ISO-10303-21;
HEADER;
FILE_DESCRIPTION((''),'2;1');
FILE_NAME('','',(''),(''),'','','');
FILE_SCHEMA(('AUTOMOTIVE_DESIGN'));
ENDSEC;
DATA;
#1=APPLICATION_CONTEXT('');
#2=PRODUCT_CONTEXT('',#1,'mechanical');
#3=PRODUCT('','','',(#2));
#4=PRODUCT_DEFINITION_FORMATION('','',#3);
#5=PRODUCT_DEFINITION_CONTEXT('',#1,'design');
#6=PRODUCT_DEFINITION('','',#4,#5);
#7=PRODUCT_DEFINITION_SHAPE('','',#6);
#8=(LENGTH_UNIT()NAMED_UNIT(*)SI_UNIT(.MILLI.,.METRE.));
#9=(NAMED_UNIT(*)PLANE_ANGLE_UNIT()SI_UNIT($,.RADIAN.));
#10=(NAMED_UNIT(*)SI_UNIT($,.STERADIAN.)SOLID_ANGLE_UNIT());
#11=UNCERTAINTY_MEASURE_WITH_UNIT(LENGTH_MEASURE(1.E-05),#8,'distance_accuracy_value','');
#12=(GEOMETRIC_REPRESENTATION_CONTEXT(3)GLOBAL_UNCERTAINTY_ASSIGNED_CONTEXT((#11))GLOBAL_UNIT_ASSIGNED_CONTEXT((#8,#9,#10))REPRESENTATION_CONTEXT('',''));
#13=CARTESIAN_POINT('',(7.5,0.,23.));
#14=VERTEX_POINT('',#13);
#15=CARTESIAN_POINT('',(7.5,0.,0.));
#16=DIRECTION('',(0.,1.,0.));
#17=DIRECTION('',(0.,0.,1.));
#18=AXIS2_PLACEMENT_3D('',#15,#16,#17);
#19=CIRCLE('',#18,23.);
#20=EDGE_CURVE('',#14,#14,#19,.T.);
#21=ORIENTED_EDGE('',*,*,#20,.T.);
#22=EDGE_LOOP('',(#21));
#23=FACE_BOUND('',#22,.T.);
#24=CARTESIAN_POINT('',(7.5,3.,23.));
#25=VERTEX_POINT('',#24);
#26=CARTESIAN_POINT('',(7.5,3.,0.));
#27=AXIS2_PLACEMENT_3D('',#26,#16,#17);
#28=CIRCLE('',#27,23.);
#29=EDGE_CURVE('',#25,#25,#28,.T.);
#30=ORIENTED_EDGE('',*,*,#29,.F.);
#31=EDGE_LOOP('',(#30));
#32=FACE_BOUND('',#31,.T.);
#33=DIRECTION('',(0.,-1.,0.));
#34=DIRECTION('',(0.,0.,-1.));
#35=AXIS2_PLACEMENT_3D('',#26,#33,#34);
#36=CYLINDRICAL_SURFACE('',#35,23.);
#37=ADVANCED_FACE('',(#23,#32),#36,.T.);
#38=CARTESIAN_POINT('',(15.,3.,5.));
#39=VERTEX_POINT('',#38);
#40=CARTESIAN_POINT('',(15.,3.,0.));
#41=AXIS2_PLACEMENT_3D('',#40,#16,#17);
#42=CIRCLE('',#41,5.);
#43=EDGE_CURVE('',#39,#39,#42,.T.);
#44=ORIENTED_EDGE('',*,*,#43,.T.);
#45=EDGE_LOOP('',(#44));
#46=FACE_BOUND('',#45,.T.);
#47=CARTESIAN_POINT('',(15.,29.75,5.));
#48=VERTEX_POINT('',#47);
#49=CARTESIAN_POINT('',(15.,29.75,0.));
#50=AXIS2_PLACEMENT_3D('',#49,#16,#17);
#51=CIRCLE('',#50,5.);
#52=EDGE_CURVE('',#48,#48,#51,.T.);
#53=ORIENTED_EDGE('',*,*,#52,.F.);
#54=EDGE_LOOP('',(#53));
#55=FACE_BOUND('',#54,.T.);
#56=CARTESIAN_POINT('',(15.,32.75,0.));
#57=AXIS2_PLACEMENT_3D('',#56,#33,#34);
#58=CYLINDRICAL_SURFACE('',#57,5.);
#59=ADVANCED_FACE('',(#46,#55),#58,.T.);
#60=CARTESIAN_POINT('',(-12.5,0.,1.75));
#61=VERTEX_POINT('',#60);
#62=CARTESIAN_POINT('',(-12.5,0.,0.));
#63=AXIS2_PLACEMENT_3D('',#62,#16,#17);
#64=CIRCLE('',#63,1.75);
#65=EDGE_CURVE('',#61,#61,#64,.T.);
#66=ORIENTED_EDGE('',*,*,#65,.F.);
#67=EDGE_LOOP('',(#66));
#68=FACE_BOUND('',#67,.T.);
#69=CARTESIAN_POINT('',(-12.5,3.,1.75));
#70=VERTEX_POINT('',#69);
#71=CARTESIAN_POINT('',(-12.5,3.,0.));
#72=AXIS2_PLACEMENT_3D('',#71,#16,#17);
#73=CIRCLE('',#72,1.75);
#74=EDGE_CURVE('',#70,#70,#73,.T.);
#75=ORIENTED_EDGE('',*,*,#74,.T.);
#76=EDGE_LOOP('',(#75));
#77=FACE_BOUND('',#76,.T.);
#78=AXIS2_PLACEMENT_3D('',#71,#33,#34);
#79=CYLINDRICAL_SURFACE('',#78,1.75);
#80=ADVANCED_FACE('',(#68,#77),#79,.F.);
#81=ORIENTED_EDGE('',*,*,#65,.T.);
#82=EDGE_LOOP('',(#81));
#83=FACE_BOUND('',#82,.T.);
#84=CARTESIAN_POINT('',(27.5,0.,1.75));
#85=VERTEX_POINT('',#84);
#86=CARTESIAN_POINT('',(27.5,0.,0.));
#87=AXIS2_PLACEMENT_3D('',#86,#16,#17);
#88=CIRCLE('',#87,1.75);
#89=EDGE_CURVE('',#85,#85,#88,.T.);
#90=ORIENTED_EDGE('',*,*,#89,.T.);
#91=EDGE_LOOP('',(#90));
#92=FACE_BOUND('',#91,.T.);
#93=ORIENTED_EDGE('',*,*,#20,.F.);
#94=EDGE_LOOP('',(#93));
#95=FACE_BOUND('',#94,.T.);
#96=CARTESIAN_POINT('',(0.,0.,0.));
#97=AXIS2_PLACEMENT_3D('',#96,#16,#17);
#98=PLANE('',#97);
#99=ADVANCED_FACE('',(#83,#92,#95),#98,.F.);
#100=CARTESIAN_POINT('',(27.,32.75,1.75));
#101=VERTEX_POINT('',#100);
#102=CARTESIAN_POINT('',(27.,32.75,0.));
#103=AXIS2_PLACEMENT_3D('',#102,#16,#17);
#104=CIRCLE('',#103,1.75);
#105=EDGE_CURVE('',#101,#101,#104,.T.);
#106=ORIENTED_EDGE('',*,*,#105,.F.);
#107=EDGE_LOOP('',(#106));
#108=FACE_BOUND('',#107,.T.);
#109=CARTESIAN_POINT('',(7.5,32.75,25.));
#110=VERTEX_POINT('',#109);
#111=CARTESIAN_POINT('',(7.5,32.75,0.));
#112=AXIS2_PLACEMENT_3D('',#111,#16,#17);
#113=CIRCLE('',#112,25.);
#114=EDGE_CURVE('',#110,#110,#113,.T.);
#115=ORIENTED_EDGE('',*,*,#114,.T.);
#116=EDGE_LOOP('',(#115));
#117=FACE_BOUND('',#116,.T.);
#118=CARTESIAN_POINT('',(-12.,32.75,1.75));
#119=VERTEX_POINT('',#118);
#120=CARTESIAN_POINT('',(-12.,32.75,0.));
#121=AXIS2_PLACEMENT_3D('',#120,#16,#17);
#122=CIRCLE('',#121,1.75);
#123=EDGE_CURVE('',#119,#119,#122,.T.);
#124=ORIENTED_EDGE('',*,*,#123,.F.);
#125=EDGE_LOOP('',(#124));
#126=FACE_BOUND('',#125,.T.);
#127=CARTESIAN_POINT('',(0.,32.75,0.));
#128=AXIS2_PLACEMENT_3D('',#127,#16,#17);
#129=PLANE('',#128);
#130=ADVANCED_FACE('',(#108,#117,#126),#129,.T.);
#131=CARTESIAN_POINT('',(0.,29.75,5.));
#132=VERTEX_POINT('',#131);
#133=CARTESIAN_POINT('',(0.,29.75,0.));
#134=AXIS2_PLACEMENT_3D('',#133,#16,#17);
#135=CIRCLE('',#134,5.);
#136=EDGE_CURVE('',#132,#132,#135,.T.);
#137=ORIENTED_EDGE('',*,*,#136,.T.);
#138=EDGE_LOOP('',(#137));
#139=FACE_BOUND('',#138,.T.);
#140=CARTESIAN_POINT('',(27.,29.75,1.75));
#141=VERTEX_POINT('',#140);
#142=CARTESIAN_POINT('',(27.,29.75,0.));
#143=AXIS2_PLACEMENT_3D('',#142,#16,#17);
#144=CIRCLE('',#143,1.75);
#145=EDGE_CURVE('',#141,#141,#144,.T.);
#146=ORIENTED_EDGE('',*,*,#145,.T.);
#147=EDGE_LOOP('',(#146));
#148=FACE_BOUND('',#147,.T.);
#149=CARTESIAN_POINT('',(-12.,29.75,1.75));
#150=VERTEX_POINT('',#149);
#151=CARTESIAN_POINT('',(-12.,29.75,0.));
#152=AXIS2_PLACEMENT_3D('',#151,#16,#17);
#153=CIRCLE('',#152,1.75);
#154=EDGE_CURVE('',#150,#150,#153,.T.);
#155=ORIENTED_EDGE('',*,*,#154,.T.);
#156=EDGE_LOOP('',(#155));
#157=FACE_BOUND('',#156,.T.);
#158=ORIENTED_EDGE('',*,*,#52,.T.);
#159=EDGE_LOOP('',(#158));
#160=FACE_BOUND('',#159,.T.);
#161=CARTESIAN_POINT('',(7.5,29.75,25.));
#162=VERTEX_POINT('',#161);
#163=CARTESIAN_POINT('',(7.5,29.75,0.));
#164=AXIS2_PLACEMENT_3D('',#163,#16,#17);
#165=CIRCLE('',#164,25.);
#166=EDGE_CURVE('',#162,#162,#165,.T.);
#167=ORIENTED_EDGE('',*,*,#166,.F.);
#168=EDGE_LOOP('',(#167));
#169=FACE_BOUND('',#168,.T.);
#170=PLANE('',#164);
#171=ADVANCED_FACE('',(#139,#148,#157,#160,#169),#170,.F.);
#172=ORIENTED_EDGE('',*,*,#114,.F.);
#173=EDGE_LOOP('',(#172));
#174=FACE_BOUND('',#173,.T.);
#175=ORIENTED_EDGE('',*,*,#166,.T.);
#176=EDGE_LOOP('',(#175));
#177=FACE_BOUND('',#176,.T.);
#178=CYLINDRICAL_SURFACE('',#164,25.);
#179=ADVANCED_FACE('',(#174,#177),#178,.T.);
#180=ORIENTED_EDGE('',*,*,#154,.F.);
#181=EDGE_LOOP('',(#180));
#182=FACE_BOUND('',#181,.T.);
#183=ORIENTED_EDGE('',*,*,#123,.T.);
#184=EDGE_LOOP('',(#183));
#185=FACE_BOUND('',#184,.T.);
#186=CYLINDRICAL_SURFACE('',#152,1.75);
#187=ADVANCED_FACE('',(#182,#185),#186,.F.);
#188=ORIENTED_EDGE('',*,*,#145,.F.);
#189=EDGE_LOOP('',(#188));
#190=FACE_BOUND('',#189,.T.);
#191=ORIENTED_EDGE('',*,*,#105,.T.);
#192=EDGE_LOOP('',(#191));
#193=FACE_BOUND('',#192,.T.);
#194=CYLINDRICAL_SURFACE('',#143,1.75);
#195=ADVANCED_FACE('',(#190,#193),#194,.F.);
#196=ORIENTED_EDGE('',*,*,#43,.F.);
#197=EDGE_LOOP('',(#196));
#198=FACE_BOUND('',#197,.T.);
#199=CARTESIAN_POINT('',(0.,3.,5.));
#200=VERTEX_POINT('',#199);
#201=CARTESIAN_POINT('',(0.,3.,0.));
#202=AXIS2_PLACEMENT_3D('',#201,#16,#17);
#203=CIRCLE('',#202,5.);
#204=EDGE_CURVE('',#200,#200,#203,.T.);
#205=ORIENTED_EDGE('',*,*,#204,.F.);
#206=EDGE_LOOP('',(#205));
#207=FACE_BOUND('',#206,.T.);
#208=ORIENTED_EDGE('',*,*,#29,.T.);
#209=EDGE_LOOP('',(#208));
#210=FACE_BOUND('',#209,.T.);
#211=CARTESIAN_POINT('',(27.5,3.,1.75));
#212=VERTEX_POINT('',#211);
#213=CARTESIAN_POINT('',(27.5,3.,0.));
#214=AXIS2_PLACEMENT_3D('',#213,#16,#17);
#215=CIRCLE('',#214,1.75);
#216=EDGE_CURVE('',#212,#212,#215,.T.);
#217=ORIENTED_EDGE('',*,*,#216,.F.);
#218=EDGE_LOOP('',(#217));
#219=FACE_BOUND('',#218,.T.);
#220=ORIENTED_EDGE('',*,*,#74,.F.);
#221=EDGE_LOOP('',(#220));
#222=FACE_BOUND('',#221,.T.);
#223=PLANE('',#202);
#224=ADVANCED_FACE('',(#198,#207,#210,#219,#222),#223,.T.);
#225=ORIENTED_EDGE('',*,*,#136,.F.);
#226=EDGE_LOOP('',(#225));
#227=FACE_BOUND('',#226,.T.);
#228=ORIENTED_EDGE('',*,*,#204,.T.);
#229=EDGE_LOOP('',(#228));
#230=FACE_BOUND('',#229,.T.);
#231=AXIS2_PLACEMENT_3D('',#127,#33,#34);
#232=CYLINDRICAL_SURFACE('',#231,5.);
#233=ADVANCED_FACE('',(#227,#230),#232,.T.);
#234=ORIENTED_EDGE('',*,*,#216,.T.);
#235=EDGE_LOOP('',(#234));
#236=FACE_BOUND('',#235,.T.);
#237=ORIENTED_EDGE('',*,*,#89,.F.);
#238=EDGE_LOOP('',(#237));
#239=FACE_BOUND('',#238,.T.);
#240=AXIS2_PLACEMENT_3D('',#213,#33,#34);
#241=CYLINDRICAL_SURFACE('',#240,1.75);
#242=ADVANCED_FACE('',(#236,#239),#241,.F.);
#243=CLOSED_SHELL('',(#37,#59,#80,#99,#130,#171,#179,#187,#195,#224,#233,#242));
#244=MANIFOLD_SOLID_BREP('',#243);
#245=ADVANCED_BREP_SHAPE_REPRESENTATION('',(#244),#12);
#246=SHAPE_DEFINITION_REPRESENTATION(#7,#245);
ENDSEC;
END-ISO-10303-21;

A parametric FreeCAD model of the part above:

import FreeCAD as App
import Part
import Sketcher
Q = App.Units.Quantity

doc = App.newDocument("Part")
params = doc.addObject("Spreadsheet::Sheet", "Params")
for row, (alias, value) in enumerate([
    ("sketch1_diameter", "46 mm"),
    ("sketch1_diameter2", "10 mm"),
    ("sketch1_diameter3", "3.5 mm"),
    ("pad1_length", "3 mm"),
    ("sketch2_diameter", "10 mm"),
    ("pad2_length", "32.75 mm"),
    ("sketch3_diameter", "50 mm"),
    ("sketch3_diameter2", "3.5 mm"),
    ("pad3_length", "3 mm"),
], start=1):
    params.set(f"A{row}", alias)
    params.set(f"B{row}", "=" + value)
    params.setAlias(f"B{row}", alias)

body = doc.addObject("PartDesign::Body", "Body")

# Sketch on XZ plane
sketch1 = body.newObject("Sketcher::SketchObject", "Sketch")
sketch1.AttachmentSupport = (doc.getObject("XZ_Plane"), [""])
sketch1.MapMode = "FlatFace"
sketch1.addGeometry(Part.Circle(App.Vector(7.5, 0, 0), App.Vector(0, 0, 1), 23), False)
sketch1.addGeometry(Part.Circle(App.Vector(-12.5, 0, 0), App.Vector(0, 0, 1), 1.8), False)
sketch1.addGeometry(Part.Circle(App.Vector(0, 0, 0), App.Vector(0, 0, 1), 5), False)
sketch1.addGeometry(Part.Circle(App.Vector(15, 0, 0), App.Vector(0, 0, 1), 5), False)
sketch1.addGeometry(Part.Circle(App.Vector(27.5, 0, 0), App.Vector(0, 0, 1), 1.8), False)
sketch1.addConstraint(Sketcher.Constraint("Coincident", 2, 3, -1, 1))
sketch1.addConstraint(Sketcher.Constraint("Equal", 2, 3))
sketch1.addConstraint(Sketcher.Constraint("Equal", 1, 4))
sketch1.addConstraint(Sketcher.Constraint("PointOnObject", 0, 3, -1))
sketch1.addConstraint(Sketcher.Constraint("PointOnObject", 1, 3, -1))
sketch1.addConstraint(Sketcher.Constraint("PointOnObject", 3, 3, -1))
sketch1.addConstraint(Sketcher.Constraint("PointOnObject", 4, 3, -1))
sketch1.addConstraint(Sketcher.Constraint("Diameter", 0, Q("46 mm")))
sketch1.addConstraint(Sketcher.Constraint("Diameter", 2, Q("10 mm")))
sketch1.addConstraint(Sketcher.Constraint("Diameter", 1, Q("3.5 mm")))
sketch1.addConstraint(Sketcher.Constraint("DistanceX", -1, 1, 3, 3, Q("15 mm")))
sketch1.addConstraint(Sketcher.Constraint("DistanceX", 1, 3, 0, 3, Q("20 mm")))
sketch1.addConstraint(Sketcher.Constraint("DistanceX", 0, 3, 4, 3, Q("20 mm")))
sketch1.addConstraint(Sketcher.Constraint("DistanceX", -1, 1, 0, 3, Q("7.5 mm")))
sketch1.setExpression("Constraints[7]", "Params.sketch1_diameter")
sketch1.setExpression("Constraints[8]", "Params.sketch1_diameter2")
sketch1.setExpression("Constraints[9]", "Params.sketch1_diameter3")
pad1 = body.newObject("PartDesign::Pad", "Pad")
pad1.Profile = sketch1
pad1.setExpression("Length", "Params.pad1_length")
pad1.Reversed = True

# Sketch on XZ plane
sketch2 = body.newObject("Sketcher::SketchObject", "Sketch001")
sketch2.AttachmentSupport = (doc.getObject("XZ_Plane"), [""])
sketch2.MapMode = "FlatFace"
sketch2.addGeometry(Part.Circle(App.Vector(0, 0, 0), App.Vector(0, 0, 1), 5), False)
sketch2.addGeometry(Part.Circle(App.Vector(15, 0, 0), App.Vector(0, 0, 1), 5), False)
sketch2.addConstraint(Sketcher.Constraint("Coincident", 0, 3, -1, 1))
sketch2.addConstraint(Sketcher.Constraint("Equal", 0, 1))
sketch2.addConstraint(Sketcher.Constraint("PointOnObject", 1, 3, -1))
sketch2.addConstraint(Sketcher.Constraint("Diameter", 0, Q("10 mm")))
sketch2.addConstraint(Sketcher.Constraint("DistanceX", -1, 1, 1, 3, Q("15 mm")))
sketch2.setExpression("Constraints[3]", "Params.sketch2_diameter")
pad2 = body.newObject("PartDesign::Pad", "Pad001")
pad2.Profile = sketch2
pad2.setExpression("Length", "Params.pad2_length")
pad2.Reversed = True

# Sketch on XZ plane
sketch3 = body.newObject("Sketcher::SketchObject", "Sketch002")
sketch3.AttachmentSupport = (doc.getObject("XZ_Plane"), [""])
sketch3.MapMode = "FlatFace"
sketch3.AttachmentOffset = App.Placement(App.Vector(0, 0, -32.75), App.Rotation())
sketch3.addGeometry(Part.Circle(App.Vector(7.5, 0, 0), App.Vector(0, 0, 1), 25), False)
sketch3.addGeometry(Part.Circle(App.Vector(-12, 0, 0), App.Vector(0, 0, 1), 1.8), False)
sketch3.addGeometry(Part.Circle(App.Vector(27, 0, 0), App.Vector(0, 0, 1), 1.8), False)
sketch3.addConstraint(Sketcher.Constraint("Equal", 1, 2))
sketch3.addConstraint(Sketcher.Constraint("PointOnObject", 0, 3, -1))
sketch3.addConstraint(Sketcher.Constraint("PointOnObject", 1, 3, -1))
sketch3.addConstraint(Sketcher.Constraint("PointOnObject", 2, 3, -1))
sketch3.addConstraint(Sketcher.Constraint("Diameter", 0, Q("50 mm")))
sketch3.addConstraint(Sketcher.Constraint("Diameter", 1, Q("3.5 mm")))
sketch3.addConstraint(Sketcher.Constraint("DistanceX", 1, 3, -1, 1, Q("12 mm")))
sketch3.addConstraint(Sketcher.Constraint("DistanceX", -1, 1, 2, 3, Q("27 mm")))
sketch3.addConstraint(Sketcher.Constraint("DistanceX", -1, 1, 0, 3, Q("7.5 mm")))
sketch3.setExpression("Constraints[4]", "Params.sketch3_diameter")
sketch3.setExpression("Constraints[5]", "Params.sketch3_diameter2")
pad3 = body.newObject("PartDesign::Pad", "Pad002")
pad3.Profile = sketch3
pad3.setExpression("Length", "Params.pad3_length")

doc.recompute()
